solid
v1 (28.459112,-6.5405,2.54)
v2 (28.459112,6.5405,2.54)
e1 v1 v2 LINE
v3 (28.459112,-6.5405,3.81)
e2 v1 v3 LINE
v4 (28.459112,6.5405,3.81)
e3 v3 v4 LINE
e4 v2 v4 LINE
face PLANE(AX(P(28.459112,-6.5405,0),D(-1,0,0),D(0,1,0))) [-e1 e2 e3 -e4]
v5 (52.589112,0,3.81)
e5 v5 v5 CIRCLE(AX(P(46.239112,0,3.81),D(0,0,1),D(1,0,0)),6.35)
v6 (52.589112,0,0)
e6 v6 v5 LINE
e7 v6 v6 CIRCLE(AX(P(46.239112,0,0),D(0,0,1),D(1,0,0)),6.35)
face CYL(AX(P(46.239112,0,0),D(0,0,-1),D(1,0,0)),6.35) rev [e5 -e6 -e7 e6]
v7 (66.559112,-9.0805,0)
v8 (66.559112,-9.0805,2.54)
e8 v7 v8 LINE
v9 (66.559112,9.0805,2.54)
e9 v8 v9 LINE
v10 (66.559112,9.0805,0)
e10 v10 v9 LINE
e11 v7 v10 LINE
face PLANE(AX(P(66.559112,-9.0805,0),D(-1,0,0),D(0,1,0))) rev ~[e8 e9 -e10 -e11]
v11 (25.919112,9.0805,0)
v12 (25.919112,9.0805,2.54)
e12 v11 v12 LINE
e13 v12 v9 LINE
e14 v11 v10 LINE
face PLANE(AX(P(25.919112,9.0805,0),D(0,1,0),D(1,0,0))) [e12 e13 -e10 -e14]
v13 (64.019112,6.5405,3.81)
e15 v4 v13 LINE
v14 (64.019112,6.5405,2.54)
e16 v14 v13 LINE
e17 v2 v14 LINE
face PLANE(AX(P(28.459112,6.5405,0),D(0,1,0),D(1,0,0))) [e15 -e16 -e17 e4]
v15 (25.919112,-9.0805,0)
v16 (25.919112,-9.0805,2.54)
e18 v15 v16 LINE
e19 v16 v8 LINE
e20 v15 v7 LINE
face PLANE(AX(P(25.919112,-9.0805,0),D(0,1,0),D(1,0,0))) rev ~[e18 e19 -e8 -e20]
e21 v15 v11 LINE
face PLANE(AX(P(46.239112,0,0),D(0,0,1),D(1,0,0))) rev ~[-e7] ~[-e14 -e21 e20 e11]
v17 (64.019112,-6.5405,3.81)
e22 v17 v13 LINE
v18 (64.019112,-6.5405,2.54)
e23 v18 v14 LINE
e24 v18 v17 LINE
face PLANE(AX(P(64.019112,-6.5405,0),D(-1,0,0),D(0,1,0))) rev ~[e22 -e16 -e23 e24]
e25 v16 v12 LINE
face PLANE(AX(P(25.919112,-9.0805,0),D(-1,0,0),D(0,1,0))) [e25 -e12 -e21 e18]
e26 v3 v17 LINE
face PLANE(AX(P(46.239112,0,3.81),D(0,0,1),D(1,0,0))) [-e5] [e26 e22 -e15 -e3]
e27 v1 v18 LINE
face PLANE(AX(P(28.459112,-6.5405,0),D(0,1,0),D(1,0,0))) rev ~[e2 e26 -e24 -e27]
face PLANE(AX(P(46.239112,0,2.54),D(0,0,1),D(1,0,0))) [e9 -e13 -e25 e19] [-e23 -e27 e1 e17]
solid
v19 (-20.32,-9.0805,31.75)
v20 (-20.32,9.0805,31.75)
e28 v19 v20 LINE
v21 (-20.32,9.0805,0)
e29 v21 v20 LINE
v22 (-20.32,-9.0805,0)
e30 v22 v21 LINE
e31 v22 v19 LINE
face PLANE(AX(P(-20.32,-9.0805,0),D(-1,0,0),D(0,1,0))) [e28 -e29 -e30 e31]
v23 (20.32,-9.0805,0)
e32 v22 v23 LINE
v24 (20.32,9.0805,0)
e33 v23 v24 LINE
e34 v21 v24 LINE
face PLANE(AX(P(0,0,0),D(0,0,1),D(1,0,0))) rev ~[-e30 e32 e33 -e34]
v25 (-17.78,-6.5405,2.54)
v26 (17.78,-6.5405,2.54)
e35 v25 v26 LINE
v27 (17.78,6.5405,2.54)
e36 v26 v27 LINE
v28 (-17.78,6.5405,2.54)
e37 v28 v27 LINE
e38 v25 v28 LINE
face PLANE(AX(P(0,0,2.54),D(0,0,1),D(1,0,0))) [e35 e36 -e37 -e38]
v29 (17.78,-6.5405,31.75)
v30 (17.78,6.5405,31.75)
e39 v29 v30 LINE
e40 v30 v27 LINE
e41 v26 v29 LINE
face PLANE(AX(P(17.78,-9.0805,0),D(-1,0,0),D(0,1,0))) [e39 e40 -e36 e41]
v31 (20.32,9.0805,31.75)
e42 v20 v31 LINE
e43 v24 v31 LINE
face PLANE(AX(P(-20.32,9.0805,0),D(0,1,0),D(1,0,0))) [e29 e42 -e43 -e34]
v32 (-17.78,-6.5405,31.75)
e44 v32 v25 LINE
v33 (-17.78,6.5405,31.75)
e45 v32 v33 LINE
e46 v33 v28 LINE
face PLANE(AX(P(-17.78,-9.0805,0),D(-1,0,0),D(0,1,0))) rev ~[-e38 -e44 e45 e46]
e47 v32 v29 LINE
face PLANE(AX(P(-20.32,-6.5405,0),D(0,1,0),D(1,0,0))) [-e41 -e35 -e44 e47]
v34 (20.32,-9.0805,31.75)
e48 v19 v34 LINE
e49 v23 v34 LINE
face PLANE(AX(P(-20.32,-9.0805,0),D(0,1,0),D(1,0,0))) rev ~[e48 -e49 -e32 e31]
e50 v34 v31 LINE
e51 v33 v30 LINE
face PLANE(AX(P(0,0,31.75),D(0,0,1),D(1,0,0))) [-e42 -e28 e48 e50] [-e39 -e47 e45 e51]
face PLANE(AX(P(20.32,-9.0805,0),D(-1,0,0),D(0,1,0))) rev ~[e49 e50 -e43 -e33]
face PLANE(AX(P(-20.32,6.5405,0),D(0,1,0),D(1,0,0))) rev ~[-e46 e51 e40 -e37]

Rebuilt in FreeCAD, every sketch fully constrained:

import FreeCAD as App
import Part
import Sketcher
from FreeCAD import Vector
Q = App.Units.Quantity


def faces_at(feature, points):
    """Names of the faces that lie closest to the given points."""
    faces = feature.Shape.Faces
    near = lambda p: min(range(len(faces)), key=lambda i: faces[i].distToShape(Part.Vertex(*p))[0])
    return sorted({f"Face{near(p) + 1}" for p in points})

doc = App.newDocument("Part")
body = doc.addObject("PartDesign::Body", "Body")

sketch1 = doc.addObject("Sketcher::SketchObject", "Sketch")
body.addObject(sketch1)
sketch1.AttachmentSupport = (doc.XY_Plane, [""])
sketch1.MapMode = "FlatFace"
sketch1.addGeometry([
    Part.LineSegment(Vector(-20.32, 9.0805, 0), Vector(-20.32, -9.0805, 0)),
    Part.LineSegment(Vector(-20.32, -9.0805, 0), Vector(20.32, -9.0805, 0)),
    Part.LineSegment(Vector(20.32, -9.0805, 0), Vector(20.32, 9.0805, 0)),
    Part.LineSegment(Vector(20.32, 9.0805, 0), Vector(-20.32, 9.0805, 0)),
], False)
sketch1.addConstraint([
    Sketcher.Constraint("Coincident", 0, 2, 1, 1),
    Sketcher.Constraint("Coincident", 1, 2, 2, 1),
    Sketcher.Constraint("Coincident", 2, 2, 3, 1),
    Sketcher.Constraint("Coincident", 3, 2, 0, 1),
    Sketcher.Constraint("Vertical", 0),
    Sketcher.Constraint("Horizontal", 1),
    Sketcher.Constraint("Vertical", 2),
    Sketcher.Constraint("Horizontal", 3),
    Sketcher.Constraint("Symmetric", 0, 2, 2, 2, -1, 1),
    Sketcher.Constraint("DistanceX", 1, 1, 1, 2, Q("1.6 in")),
    Sketcher.Constraint("DistanceY", 0, 2, 0, 1, Q("0.715 in")),
])
pad1 = doc.addObject("PartDesign::Pad", "Pad")
body.addObject(pad1)
pad1.Profile = sketch1
pad1.Length = Q("1.25 in")
doc.recompute()

thickness = doc.addObject("PartDesign::Thickness", "Thickness")
body.addObject(thickness)
thickness.Base = (pad1, faces_at(pad1, [(0, 0, 31.75)]))
thickness.Value = Q("0.1 in")
thickness.Reversed = True
thickness.Join = "Arc"
body2 = doc.addObject("PartDesign::Body", "Body001")

sketch2 = doc.addObject("Sketcher::SketchObject", "Sketch001")
body2.addObject(sketch2)
sketch2.AttachmentSupport = (doc.getObject("XY_Plane001"), [""])
sketch2.MapMode = "FlatFace"
sketch2.addGeometry([
    Part.LineSegment(Vector(25.919112, 9.0805, 0), Vector(25.919112, -9.0805, 0)),
    Part.LineSegment(Vector(25.919112, -9.0805, 0), Vector(66.559112, -9.0805, 0)),
    Part.LineSegment(Vector(66.559112, -9.0805, 0), Vector(66.559112, 9.0805, 0)),
    Part.LineSegment(Vector(66.559112, 9.0805, 0), Vector(25.919112, 9.0805, 0)),
    Part.LineSegment(Vector(64.019112, -6.5405, 0), Vector(28.459112, -6.5405, 0)),
    Part.LineSegment(Vector(28.459112, -6.5405, 0), Vector(28.459112, 6.5405, 0)),
    Part.LineSegment(Vector(28.459112, 6.5405, 0), Vector(64.019112, 6.5405, 0)),
    Part.LineSegment(Vector(64.019112, 6.5405, 0), Vector(64.019112, -6.5405, 0)),
], False)
sketch2.addConstraint([
    Sketcher.Constraint("Coincident", 0, 2, 1, 1),
    Sketcher.Constraint("Coincident", 1, 2, 2, 1),
    Sketcher.Constraint("Coincident", 2, 2, 3, 1),
    Sketcher.Constraint("Coincident", 3, 2, 0, 1),
    Sketcher.Constraint("Coincident", 4, 2, 5, 1),
    Sketcher.Constraint("Coincident", 5, 2, 6, 1),
    Sketcher.Constraint("Coincident", 6, 2, 7, 1),
    Sketcher.Constraint("Coincident", 7, 2, 4, 1),
    Sketcher.Constraint("Vertical", 0),
    Sketcher.Constraint("Horizontal", 1),
    Sketcher.Constraint("Vertical", 2),
    Sketcher.Constraint("Horizontal", 3),
    Sketcher.Constraint("Horizontal", 4),
    Sketcher.Constraint("Vertical", 5),
    Sketcher.Constraint("Horizontal", 6),
    Sketcher.Constraint("Vertical", 7),
    Sketcher.Constraint("DistanceX", 1, 1, 1, 2, Q("1.6 in")),
    Sketcher.Constraint("DistanceX", 4, 2, 4, 1, Q("1.4 in")),
    Sketcher.Constraint("DistanceX", 0, 2, 4, 2, Q("0.1 in")),
    Sketcher.Constraint("DistanceY", 0, 2, 4, 2, Q("0.1 in")),
    Sketcher.Constraint("DistanceY", 5, 2, 3, 2, Q("0.1 in")),
    Sketcher.Constraint("DistanceY", 0, 2, 0, 1, Q("0.715 in")),
    Sketcher.Constraint("DistanceY", 0, 2, -1, 1, Q("0.3575 in")),
    Sketcher.Constraint("DistanceX", -1, 1, 0, 2, 25.919112),
])
pad2 = doc.addObject("PartDesign::Pad", "Pad001")
body2.addObject(pad2)
pad2.Profile = sketch2
pad2.Length = Q("0.1 in")

sketch3 = doc.addObject("Sketcher::SketchObject", "Sketch002")
body2.addObject(sketch3)
sketch3.AttachmentSupport = (doc.getObject("XY_Plane001"), [""])
sketch3.MapMode = "FlatFace"
sketch3.addGeometry([
    Part.LineSegment(Vector(28.459112, 6.5405, 0), Vector(28.459112, -6.5405, 0)),
    Part.LineSegment(Vector(28.459112, -6.5405, 0), Vector(64.019112, -6.5405, 0)),
    Part.LineSegment(Vector(64.019112, -6.5405, 0), Vector(64.019112, 6.5405, 0)),
    Part.LineSegment(Vector(64.019112, 6.5405, 0), Vector(28.459112, 6.5405, 0)),
    Part.Circle(Vector(46.239112, 0, 0), Vector(0, 0, 1), 6.35),
], False)
sketch3.addConstraint([
    Sketcher.Constraint("Coincident", 0, 2, 1, 1),
    Sketcher.Constraint("Coincident", 1, 2, 2, 1),
    Sketcher.Constraint("Coincident", 2, 2, 3, 1),
    Sketcher.Constraint("Coincident", 3, 2, 0, 1),
    Sketcher.Constraint("Vertical", 0),
    Sketcher.Constraint("Horizontal", 1),
    Sketcher.Constraint("Vertical", 2),
    Sketcher.Constraint("Horizontal", 3),
    Sketcher.Constraint("PointOnObject", 4, 3, -1),
    Sketcher.Constraint("Diameter", 4, Q("0.5 in")),
    Sketcher.Constraint("DistanceX", 1, 1, 1, 2, Q("1.4 in")),
    Sketcher.Constraint("DistanceX", 0, 2, 4, 3, Q("0.7 in")),
    Sketcher.Constraint("DistanceY", 0, 2, 0, 1, Q("0.515 in")),
    Sketcher.Constraint("DistanceY", 0, 2, -1, 1, Q("0.2575 in")),
    Sketcher.Constraint("DistanceX", -1, 1, 4, 3, 46.239112),
])
pad3 = doc.addObject("PartDesign::Pad", "Pad002")
body2.addObject(pad3)
pad3.Profile = sketch3
pad3.Length = Q("0.15 in")

doc.recompute()
